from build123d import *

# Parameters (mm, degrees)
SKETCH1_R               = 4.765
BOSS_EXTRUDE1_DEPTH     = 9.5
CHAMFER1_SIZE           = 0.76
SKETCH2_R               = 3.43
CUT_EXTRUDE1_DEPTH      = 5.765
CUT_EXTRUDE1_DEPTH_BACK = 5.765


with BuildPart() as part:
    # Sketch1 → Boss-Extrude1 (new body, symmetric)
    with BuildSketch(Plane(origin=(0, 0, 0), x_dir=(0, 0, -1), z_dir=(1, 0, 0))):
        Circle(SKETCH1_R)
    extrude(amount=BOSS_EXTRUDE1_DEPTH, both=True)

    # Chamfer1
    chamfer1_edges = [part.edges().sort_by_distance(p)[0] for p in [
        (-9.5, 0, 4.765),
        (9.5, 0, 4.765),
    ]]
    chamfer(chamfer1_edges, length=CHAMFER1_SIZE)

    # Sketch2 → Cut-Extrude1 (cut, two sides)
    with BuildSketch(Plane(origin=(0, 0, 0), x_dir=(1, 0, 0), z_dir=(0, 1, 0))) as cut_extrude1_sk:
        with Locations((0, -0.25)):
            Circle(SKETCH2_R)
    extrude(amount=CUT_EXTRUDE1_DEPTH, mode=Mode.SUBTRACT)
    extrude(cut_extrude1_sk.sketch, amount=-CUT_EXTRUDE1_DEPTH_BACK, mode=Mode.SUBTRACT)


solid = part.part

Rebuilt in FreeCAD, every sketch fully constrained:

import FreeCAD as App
import Part
import Sketcher
from FreeCAD import Vector
Q = App.Units.Quantity


def edges_at(feature, points):
    """Names of the edges that pass closest to the given points."""
    edges = feature.Shape.Edges
    near = lambda p: min(range(len(edges)), key=lambda i: edges[i].distToShape(Part.Vertex(*p))[0])
    return sorted({f"Edge{near(p) + 1}" for p in points})

doc = App.newDocument("Part")
body = doc.addObject("PartDesign::Body", "Body")

# Sketch on YZ plane
sketch1 = doc.addObject("Sketcher::SketchObject", "Sketch")
body.addObject(sketch1)
sketch1.AttachmentSupport = (doc.YZ_Plane, [""])
sketch1.MapMode = "FlatFace"
sketch1.addGeometry(Part.Circle(Vector(0, 0, 0), Vector(0, 0, 1), 4.8), False)
sketch1.addConstraint([
    Sketcher.Constraint("Coincident", 0, 3, -1, 1),
    Sketcher.Constraint("Diameter", 0, Q("9.53 mm")),
])
pad1 = doc.addObject("PartDesign::Pad", "Pad")
body.addObject(pad1)
pad1.Profile = sketch1
pad1.Length = 19
pad1.Midplane = True
doc.recompute()

chamfer = doc.addObject("PartDesign::Chamfer", "Chamfer")
body.addObject(chamfer)
chamfer.Base = (pad1, edges_at(pad1, [(-9.5, 0, 4.765), (9.5, 0, 4.765)]))
chamfer.Size = 0.76

# Sketch on XZ plane
sketch2 = doc.addObject("Sketcher::SketchObject", "Sketch001")
body.addObject(sketch2)
sketch2.AttachmentSupport = (doc.XZ_Plane, [""])
sketch2.MapMode = "FlatFace"
sketch2.addGeometry(Part.Circle(Vector(0, 0.2, 0), Vector(0, 0, 1), 3.4), False)
sketch2.addConstraint([
    Sketcher.Constraint("PointOnObject", 0, 3, -2),
    Sketcher.Constraint("Diameter", 0, Q("6.86 mm")),
    Sketcher.Constraint("DistanceY", -1, 1, 0, 3, Q("0.25 mm")),
])
pocket1 = doc.addObject("PartDesign::Pocket", "Pocket")
body.addObject(pocket1)
pocket1.Profile = sketch2
pocket1.Type = "ThroughAll"
pocket1.Midplane = True

doc.recompute()
